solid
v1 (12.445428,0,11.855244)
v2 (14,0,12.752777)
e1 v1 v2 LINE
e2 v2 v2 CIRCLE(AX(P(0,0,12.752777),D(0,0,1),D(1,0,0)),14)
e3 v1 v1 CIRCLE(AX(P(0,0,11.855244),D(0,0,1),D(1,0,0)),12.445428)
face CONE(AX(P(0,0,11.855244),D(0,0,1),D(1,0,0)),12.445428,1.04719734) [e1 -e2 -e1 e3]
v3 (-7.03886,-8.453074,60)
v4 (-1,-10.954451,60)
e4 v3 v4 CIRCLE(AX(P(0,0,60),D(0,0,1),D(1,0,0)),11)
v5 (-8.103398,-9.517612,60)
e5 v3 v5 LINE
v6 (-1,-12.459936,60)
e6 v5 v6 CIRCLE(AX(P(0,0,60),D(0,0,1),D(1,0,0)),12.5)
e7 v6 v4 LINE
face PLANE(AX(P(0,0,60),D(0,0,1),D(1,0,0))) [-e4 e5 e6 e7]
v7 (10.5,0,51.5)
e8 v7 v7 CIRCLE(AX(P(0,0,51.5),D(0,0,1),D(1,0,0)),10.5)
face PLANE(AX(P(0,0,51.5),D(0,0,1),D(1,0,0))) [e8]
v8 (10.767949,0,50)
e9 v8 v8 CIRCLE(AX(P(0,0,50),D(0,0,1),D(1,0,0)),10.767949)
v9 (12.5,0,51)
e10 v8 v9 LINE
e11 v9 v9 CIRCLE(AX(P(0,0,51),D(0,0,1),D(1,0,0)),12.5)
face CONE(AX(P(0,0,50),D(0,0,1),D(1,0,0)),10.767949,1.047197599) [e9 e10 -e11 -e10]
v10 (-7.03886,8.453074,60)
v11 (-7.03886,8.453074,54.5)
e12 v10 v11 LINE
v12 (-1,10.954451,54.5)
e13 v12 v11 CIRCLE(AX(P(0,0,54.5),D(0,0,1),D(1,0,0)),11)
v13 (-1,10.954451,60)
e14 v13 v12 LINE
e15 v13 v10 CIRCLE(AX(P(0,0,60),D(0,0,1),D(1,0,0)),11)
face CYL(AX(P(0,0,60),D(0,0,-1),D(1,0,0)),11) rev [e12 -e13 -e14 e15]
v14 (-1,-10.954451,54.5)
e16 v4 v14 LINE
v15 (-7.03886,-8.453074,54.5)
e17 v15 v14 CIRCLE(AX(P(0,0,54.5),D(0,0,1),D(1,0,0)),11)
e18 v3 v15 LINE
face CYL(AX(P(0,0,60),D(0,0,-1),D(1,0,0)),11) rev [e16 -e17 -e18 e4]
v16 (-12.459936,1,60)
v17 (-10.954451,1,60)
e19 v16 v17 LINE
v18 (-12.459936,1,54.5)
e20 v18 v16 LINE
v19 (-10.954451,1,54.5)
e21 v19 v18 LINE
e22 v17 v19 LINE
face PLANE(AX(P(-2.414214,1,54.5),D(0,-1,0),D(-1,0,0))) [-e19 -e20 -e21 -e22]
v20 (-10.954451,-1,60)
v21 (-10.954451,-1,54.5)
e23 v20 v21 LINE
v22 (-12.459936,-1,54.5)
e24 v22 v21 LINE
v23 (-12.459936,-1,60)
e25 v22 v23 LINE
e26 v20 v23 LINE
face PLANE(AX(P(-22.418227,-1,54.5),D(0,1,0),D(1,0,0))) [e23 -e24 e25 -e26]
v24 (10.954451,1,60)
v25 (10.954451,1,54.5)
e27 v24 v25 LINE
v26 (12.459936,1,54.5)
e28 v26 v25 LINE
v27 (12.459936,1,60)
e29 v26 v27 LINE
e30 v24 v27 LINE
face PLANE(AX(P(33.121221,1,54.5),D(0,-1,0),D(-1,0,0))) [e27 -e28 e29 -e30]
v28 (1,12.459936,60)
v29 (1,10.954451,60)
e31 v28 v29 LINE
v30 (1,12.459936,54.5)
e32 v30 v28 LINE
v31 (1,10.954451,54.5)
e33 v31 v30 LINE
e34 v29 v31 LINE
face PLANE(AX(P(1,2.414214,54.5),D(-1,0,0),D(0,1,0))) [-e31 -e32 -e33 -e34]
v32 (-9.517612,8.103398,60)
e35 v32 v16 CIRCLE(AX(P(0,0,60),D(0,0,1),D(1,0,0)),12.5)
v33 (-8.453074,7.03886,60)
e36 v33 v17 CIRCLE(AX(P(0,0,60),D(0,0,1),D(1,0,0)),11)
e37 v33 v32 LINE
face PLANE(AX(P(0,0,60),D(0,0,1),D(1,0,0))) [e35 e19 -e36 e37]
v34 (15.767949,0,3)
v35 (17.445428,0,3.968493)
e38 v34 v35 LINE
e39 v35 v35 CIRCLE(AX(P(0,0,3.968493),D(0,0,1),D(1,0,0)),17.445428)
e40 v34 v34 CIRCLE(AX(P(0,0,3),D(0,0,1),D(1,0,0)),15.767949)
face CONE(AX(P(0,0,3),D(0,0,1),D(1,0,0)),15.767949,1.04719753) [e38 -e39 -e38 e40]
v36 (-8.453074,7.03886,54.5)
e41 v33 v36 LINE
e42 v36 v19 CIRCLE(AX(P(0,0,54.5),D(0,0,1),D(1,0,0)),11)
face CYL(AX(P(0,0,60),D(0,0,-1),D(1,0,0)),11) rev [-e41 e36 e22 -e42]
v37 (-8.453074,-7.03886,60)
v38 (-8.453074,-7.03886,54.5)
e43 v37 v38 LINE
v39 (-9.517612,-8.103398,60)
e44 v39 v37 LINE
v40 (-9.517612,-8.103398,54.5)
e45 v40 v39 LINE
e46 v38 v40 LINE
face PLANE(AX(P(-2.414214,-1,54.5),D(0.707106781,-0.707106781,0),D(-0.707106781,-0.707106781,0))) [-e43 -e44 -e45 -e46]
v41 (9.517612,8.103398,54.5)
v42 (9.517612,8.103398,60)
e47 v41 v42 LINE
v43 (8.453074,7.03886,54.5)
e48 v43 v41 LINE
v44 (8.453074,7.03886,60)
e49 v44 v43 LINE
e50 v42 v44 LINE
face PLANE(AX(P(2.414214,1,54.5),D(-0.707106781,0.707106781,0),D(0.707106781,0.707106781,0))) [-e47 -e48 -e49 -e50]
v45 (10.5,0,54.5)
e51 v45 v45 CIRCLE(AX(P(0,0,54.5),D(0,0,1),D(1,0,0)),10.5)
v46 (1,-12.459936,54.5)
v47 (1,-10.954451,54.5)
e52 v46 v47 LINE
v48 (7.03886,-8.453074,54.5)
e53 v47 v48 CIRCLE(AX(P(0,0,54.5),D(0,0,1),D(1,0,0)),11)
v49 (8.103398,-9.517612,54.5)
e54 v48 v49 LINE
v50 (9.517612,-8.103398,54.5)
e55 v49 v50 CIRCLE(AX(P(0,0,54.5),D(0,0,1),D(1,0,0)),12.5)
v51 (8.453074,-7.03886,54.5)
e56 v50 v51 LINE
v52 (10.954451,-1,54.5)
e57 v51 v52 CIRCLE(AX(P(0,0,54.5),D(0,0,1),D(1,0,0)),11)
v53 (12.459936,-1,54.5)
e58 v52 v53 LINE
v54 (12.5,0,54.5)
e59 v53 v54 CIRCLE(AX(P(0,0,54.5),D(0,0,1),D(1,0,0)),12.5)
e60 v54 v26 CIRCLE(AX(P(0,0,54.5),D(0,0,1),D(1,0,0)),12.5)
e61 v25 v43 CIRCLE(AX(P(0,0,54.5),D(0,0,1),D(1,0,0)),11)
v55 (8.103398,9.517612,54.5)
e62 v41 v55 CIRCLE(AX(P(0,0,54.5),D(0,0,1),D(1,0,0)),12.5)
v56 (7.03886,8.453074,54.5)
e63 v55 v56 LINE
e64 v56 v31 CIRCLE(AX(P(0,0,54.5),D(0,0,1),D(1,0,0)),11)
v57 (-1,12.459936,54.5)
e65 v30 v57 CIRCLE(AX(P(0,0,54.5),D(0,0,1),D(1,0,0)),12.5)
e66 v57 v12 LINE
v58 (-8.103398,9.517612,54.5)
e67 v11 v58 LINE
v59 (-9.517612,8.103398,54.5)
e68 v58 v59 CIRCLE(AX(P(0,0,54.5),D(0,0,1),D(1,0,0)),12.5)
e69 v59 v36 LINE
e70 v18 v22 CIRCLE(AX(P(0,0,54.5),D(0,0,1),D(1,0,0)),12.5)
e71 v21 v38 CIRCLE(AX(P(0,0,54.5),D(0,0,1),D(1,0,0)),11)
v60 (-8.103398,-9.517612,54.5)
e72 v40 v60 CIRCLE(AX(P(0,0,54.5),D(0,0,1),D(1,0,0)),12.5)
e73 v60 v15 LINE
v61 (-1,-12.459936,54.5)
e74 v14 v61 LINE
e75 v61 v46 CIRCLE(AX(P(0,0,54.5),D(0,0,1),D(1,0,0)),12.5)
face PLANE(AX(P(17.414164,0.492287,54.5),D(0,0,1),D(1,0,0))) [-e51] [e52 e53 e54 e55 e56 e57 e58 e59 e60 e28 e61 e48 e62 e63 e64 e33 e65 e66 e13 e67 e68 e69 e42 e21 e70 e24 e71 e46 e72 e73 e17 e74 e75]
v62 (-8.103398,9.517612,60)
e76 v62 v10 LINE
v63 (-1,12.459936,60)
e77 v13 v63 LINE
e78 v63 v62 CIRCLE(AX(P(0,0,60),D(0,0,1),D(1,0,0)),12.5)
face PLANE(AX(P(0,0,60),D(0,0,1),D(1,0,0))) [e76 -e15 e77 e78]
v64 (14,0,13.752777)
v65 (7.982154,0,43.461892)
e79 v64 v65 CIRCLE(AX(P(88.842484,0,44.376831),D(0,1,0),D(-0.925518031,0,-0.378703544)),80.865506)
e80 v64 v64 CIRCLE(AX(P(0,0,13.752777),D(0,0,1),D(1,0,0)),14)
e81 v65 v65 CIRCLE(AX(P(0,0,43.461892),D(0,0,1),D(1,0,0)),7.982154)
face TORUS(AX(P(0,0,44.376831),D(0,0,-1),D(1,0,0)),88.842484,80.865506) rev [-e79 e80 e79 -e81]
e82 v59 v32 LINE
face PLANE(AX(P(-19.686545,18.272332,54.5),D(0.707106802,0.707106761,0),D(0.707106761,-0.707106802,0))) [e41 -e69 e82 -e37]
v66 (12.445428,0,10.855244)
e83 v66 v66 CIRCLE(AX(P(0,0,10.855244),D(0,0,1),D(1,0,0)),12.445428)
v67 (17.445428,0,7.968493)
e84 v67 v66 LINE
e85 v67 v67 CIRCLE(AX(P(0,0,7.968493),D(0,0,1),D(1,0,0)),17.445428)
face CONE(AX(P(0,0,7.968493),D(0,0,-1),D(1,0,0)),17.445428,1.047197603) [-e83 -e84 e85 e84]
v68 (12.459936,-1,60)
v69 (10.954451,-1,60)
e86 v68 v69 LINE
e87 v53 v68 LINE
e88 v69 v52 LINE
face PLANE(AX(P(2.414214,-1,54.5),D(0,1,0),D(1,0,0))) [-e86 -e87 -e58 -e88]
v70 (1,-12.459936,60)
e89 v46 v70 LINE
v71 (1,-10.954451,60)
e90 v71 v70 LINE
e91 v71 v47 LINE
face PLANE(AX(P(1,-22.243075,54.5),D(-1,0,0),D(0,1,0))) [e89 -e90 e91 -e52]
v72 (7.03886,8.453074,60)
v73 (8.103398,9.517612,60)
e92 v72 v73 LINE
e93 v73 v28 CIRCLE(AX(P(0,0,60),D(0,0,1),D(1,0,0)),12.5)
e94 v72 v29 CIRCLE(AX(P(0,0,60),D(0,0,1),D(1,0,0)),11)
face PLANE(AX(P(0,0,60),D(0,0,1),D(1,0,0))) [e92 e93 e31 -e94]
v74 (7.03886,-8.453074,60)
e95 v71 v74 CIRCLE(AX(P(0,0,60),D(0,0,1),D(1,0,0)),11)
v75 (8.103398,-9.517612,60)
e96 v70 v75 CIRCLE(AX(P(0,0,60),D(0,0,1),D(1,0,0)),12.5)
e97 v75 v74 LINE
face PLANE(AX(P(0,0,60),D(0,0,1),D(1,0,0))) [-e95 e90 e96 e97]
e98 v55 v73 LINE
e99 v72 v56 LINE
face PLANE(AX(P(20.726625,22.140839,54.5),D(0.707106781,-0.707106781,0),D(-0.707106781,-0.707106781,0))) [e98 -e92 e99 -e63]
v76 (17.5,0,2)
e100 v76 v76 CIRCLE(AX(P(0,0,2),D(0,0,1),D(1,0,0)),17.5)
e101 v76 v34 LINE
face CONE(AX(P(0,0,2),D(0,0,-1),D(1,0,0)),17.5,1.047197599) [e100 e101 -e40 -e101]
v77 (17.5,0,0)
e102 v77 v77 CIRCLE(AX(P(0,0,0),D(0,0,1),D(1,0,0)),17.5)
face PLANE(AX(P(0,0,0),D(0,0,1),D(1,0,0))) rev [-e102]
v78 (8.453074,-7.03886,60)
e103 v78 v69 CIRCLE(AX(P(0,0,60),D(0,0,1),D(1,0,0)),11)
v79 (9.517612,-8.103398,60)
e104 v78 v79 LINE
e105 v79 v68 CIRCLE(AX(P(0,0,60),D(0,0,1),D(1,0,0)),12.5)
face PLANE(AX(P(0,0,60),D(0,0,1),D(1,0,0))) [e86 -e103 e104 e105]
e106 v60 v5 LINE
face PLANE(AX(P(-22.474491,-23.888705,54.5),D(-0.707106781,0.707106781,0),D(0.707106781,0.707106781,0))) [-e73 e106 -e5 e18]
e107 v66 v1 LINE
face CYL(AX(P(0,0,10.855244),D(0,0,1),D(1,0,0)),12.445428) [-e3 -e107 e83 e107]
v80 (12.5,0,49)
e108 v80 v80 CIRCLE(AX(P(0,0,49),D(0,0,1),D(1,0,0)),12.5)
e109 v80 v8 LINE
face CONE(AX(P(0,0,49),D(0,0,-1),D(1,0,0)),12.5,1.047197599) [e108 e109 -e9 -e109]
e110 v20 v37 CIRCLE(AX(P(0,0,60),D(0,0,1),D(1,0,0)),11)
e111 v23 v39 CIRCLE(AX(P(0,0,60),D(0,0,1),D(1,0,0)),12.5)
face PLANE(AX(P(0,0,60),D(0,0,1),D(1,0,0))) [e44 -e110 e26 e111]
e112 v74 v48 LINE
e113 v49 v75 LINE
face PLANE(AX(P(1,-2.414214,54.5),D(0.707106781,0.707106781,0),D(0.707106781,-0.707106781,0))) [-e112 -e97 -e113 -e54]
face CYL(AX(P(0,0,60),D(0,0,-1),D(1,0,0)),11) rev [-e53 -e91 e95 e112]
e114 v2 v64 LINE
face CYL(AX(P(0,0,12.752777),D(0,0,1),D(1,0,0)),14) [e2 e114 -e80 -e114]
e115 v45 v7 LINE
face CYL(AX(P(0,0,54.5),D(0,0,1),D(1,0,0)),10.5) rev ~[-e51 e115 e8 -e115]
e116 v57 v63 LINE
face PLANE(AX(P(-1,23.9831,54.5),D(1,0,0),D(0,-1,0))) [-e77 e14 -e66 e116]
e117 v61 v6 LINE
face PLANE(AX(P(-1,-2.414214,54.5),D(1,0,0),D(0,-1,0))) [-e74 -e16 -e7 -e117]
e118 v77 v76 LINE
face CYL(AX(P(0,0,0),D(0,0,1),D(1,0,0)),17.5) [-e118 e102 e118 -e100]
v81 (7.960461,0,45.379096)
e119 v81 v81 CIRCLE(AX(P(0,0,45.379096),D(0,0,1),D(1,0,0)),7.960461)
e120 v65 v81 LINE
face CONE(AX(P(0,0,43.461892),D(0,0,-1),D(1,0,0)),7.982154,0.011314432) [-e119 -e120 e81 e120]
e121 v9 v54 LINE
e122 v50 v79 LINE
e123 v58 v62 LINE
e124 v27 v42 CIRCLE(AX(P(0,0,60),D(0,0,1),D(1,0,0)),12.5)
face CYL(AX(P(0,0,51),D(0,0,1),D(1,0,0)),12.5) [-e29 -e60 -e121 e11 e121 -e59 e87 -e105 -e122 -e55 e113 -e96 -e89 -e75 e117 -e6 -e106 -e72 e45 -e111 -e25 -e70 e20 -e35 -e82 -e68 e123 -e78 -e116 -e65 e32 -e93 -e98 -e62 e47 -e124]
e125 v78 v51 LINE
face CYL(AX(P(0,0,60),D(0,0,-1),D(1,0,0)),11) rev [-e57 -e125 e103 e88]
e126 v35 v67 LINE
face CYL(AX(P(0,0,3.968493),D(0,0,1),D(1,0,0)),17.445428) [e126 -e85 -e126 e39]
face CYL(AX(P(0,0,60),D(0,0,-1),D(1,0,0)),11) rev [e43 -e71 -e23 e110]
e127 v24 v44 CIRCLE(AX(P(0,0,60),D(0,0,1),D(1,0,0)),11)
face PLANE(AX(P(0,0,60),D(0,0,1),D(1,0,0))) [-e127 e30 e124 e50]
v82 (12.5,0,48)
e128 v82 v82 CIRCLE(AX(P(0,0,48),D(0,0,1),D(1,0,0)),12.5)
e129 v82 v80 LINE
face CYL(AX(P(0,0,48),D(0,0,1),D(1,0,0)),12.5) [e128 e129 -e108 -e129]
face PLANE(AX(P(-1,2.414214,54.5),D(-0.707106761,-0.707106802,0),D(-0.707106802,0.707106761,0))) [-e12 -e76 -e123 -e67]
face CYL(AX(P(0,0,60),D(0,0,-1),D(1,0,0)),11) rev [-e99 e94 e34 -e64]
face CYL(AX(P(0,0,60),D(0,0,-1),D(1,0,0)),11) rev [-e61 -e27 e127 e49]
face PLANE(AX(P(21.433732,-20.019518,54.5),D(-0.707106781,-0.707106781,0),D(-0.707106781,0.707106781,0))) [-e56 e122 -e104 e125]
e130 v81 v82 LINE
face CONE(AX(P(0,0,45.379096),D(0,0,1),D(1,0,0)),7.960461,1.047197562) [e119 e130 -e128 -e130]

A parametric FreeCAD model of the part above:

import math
import FreeCAD as App
import Part
import Sketcher
Q = App.Units.Quantity


def add_polygon(sketch, points):
    """Adds a closed chain of lines whose ends are joined by coincident constraints."""
    first, n = sketch.GeometryCount, len(points)
    for a, b in zip(points, points[1:] + points[:1]):
        sketch.addGeometry(Part.LineSegment(App.Vector(*a, 0), App.Vector(*b, 0)), False)
    for i in range(n):
        sketch.addConstraint(Sketcher.Constraint("Coincident", first + i, 2, first + (i + 1) % n, 1))

doc = App.newDocument("Part")
body = doc.addObject("PartDesign::Body", "Body")

sketch1 = body.newObject("Sketcher::SketchObject", "Sketch")
sketch1.AttachmentSupport = (doc.getObject("XZ_Plane"), [""])
sketch1.MapMode = "FlatFace"
sketch1.addGeometry([
    Part.LineSegment(App.Vector(0, 0, 0), App.Vector(17.5, 0, 0)),
    Part.LineSegment(App.Vector(17.5, 0, 0), App.Vector(17.5, 2, 0)),
    Part.LineSegment(App.Vector(17.5, 2, 0), App.Vector(15.767949, 3, 0)),
    Part.LineSegment(App.Vector(15.767949, 3, 0), App.Vector(17.445428, 3.968493, 0)),
    Part.LineSegment(App.Vector(17.445428, 3.968493, 0), App.Vector(17.445428, 7.968493, 0)),
    Part.LineSegment(App.Vector(17.445428, 7.968493, 0), App.Vector(12.445428, 10.855244, 0)),
    Part.LineSegment(App.Vector(12.445428, 10.855244, 0), App.Vector(12.445428, 11.855244, 0)),
    Part.LineSegment(App.Vector(12.445428, 11.855244, 0), App.Vector(14, 12.752777, 0)),
    Part.LineSegment(App.Vector(14, 12.752777, 0), App.Vector(14, 13.752777, 0)),
    Part.ArcOfCircle(Part.Circle(App.Vector(88.842484, 44.376831, 0), App.Vector(0, 0, 1), 80.865506), math.radians(-179.351723), math.radians(-157.7466)),
    Part.LineSegment(App.Vector(7.982154, 43.461892, 0), App.Vector(7.960461, 45.379096, 0)),
    Part.LineSegment(App.Vector(7.960461, 45.379096, 0), App.Vector(12.5, 48, 0)),
    Part.LineSegment(App.Vector(12.5, 48, 0), App.Vector(12.5, 49, 0)),
    Part.LineSegment(App.Vector(12.5, 49, 0), App.Vector(10.767949, 50, 0)),
    Part.LineSegment(App.Vector(10.767949, 50, 0), App.Vector(12.5, 51, 0)),
    Part.LineSegment(App.Vector(12.5, 51, 0), App.Vector(12.5, 60, 0)),
    Part.LineSegment(App.Vector(12.5, 60, 0), App.Vector(11, 60, 0)),
    Part.LineSegment(App.Vector(11, 60, 0), App.Vector(11, 54.5, 0)),
    Part.LineSegment(App.Vector(11, 54.5, 0), App.Vector(0, 54.5, 0)),
    Part.LineSegment(App.Vector(0, 54.5, 0), App.Vector(0, 0, 0)),
], False)
sketch1.addConstraint([
    Sketcher.Constraint("Coincident", 0, 2, 1, 1),
    Sketcher.Constraint("Coincident", 1, 2, 2, 1),
    Sketcher.Constraint("Coincident", 2, 2, 3, 1),
    Sketcher.Constraint("Coincident", 3, 2, 4, 1),
    Sketcher.Constraint("Coincident", 4, 2, 5, 1),
    Sketcher.Constraint("Coincident", 5, 2, 6, 1),
    Sketcher.Constraint("Coincident", 6, 2, 7, 1),
    Sketcher.Constraint("Coincident", 7, 2, 8, 1),
    Sketcher.Constraint("Coincident", 8, 2, 9, 2),
    Sketcher.Constraint("Coincident", 9, 1, 10, 1),
    Sketcher.Constraint("Coincident", 10, 2, 11, 1),
    Sketcher.Constraint("Coincident", 11, 2, 12, 1),
    Sketcher.Constraint("Coincident", 12, 2, 13, 1),
    Sketcher.Constraint("Coincident", 13, 2, 14, 1),
    Sketcher.Constraint("Coincident", 14, 2, 15, 1),
    Sketcher.Constraint("Coincident", 15, 2, 16, 1),
    Sketcher.Constraint("Coincident", 16, 2, 17, 1),
    Sketcher.Constraint("Coincident", 17, 2, 18, 1),
    Sketcher.Constraint("Coincident", 18, 2, 19, 1),
    Sketcher.Constraint("Coincident", 19, 2, 0, 1),
    Sketcher.Constraint("Horizontal", 0),
    Sketcher.Constraint("Vertical", 1),
    Sketcher.Constraint("Vertical", 4),
    Sketcher.Constraint("Vertical", 6),
    Sketcher.Constraint("Vertical", 8),
    Sketcher.Constraint("Vertical", 12),
    Sketcher.Constraint("Vertical", 15),
    Sketcher.Constraint("Horizontal", 16),
    Sketcher.Constraint("Vertical", 17),
    Sketcher.Constraint("Horizontal", 18),
    Sketcher.Constraint("Vertical", 19),
    Sketcher.Constraint("Coincident", 19, 2, -1, 1),
    Sketcher.Constraint("DistanceX", 18, 2, 18, 1, Q("11 mm")),
    Sketcher.Constraint("DistanceY", 1, 1, 1, 2, Q("2 mm")),
    Sketcher.Constraint("DistanceY", 4, 1, 4, 2, Q("4 mm")),
    Sketcher.Constraint("DistanceY", 6, 1, 6, 2, Q("1 mm")),
    Sketcher.Constraint("DistanceY", 8, 1, 8, 2, Q("1 mm")),
    Sketcher.Constraint("DistanceY", 12, 1, 12, 2, Q("1 mm")),
    Sketcher.Constraint("DistanceY", 15, 1, 15, 2, Q("9 mm")),
    Sketcher.Constraint("Distance", 2, Q("2 mm")),
    Sketcher.Constraint("Distance", 13, Q("2 mm")),
    Sketcher.Constraint("Distance", 14, Q("2 mm")),
    Sketcher.Constraint("DistanceX", 0, 1, 0, 2, Q("17.5 mm")),
    Sketcher.Constraint("DistanceX", 16, 2, 16, 1, Q("1.5 mm")),
    Sketcher.Constraint("DistanceY", 17, 2, 17, 1, Q("5.5 mm")),
    Sketcher.Constraint("DistanceY", 19, 2, 19, 1, Q("54.5 mm")),
    Sketcher.Constraint("DistanceY", -1, 1, 2, 2, Q("3 mm")),
    Sketcher.Constraint("DistanceX", -1, 1, 7, 2, Q("14 mm")),
    Sketcher.Constraint("DistanceY", -1, 1, 11, 2, Q("48 mm")),
    Sketcher.Constraint("DistanceY", -1, 1, 13, 2, Q("50 mm")),
    Sketcher.Constraint("DistanceX", 5, 2, 4, 2, Q("5 mm")),
    Sketcher.Constraint("Radius", 9, Q("80.865506 mm")),
    Sketcher.Constraint("DistanceY", 4, 2, 9, 1, Q("35.493399 mm")),
    Sketcher.Constraint("Distance", 11, Q("5.241808 mm")),
    Sketcher.Constraint("DistanceY", -1, 1, 9, 3, Q("44.376831 mm")),
    Sketcher.Constraint("DistanceX", -1, 1, 10, 2, Q("7.960461 mm")),
    Sketcher.Constraint("DistanceX", 2, 2, 3, 2, Q("1.677479 mm")),
    Sketcher.Constraint("DistanceY", 4, 2, 5, 2, Q("2.886751 mm")),
    Sketcher.Constraint("DistanceY", 8, 2, 10, 2, Q("31.626319 mm")),
    Sketcher.Constraint("DistanceY", 6, 2, 10, 2, Q("33.523852 mm")),
])
revolution = body.newObject("PartDesign::Revolution", "Revolution")
revolution.Profile = sketch1
revolution.ReferenceAxis = (sketch1, ["V_Axis"])
revolution.Angle = 360

sketch2 = body.newObject("Sketcher::SketchObject", "Sketch001")
sketch2.AttachmentSupport = (doc.getObject("XY_Plane"), [""])
sketch2.MapMode = "FlatFace"
sketch2.AttachmentOffset = App.Placement(App.Vector(0, 0, 54.5), App.Rotation())
add_polygon(sketch2, [(1, 0), (0, 0), (-0.71, 0.71), (-1, 0.41), (-1, -0.41), (-0.41, -1), (1, -1)])
add_polygon(sketch2, [(2.41, 1), (1.41, 0), (2.41, -1), (33.12, -1), (33.12, 1)])
add_polygon(sketch2, [(-1, 2.41), (0, 1.41), (1, 2.41), (1, 23.98), (-1, 23.98)])
add_polygon(sketch2, [(1, 1), (2.41, 1), (22.14, 20.73), (20.73, 22.14), (1, 2.41)])
add_polygon(sketch2, [(-1, 1), (-1, 2.41), (-18.31, 19.73), (-19, 19), (-19.69, 18.27), (-2.41, 1)])
add_polygon(sketch2, [(21.43, -20.02), (2.41, -1), (1, -1), (1, -2.41), (20.02, -21.43)])
add_polygon(sketch2, [(-2.41, -1), (-1.41, 0), (-2.41, 1), (-22.42, 1), (-22.42, -1)])
add_polygon(sketch2, [(1, -22.24), (1, -2.41), (0, -1.41), (-1, -2.41), (-1, -22.24)])
add_polygon(sketch2, [(-1, -2.41), (-1, -1), (-2.41, -1), (-23.89, -22.47), (-22.47, -23.89)])
sketch2.addConstraint([
    Sketcher.Constraint("Horizontal", 0),
    Sketcher.Constraint("Vertical", 3),
    Sketcher.Constraint("Horizontal", 5),
    Sketcher.Constraint("Vertical", 6),
    Sketcher.Constraint("Horizontal", 9),
    Sketcher.Constraint("Vertical", 10),
    Sketcher.Constraint("Horizontal", 11),
    Sketcher.Constraint("Vertical", 14),
    Sketcher.Constraint("Horizontal", 15),
    Sketcher.Constraint("Vertical", 16),
    Sketcher.Constraint("Horizontal", 17),
    Sketcher.Constraint("Vertical", 21),
    Sketcher.Constraint("Vertical", 22),
    Sketcher.Constraint("Horizontal", 27),
    Sketcher.Constraint("Horizontal", 29),
    Sketcher.Constraint("Vertical", 30),
    Sketcher.Constraint("Horizontal", 35),
    Sketcher.Constraint("Vertical", 36),
    Sketcher.Constraint("Horizontal", 37),
    Sketcher.Constraint("Vertical", 38),
    Sketcher.Constraint("Vertical", 41),
    Sketcher.Constraint("Horizontal", 42),
    Sketcher.Constraint("Vertical", 43),
    Sketcher.Constraint("Horizontal", 44),
    Sketcher.Constraint("Coincident", 0, 2, -1, 1),
    Sketcher.Constraint("Coincident", 17, 2, 11, 2),
    Sketcher.Constraint("Coincident", 20, 2, 13, 2),
    Sketcher.Constraint("Coincident", 22, 2, 16, 2),
    Sketcher.Constraint("Coincident", 28, 2, 8, 2),
    Sketcher.Constraint("Coincident", 29, 2, 5, 2),
    Sketcher.Constraint("Coincident", 34, 2, 26, 2),
    Sketcher.Constraint("Coincident", 38, 2, 30, 2),
    Sketcher.Constraint("Coincident", 44, 2, 37, 2),
    Sketcher.Constraint("Coincident", 47, 2, 40, 2),
    Sketcher.Constraint("Symmetric", 8, 2, 26, 2, -1, 1),
    Sketcher.Constraint("Symmetric", 16, 2, 30, 2, -1, 1),
    Sketcher.Constraint("Symmetric", 7, 2, 33, 2, -1, 1),
    Sketcher.Constraint("Symmetric", 11, 2, 37, 2, -1, 1),
    Sketcher.Constraint("Symmetric", 12, 2, 39, 2, -1, 1),
    Sketcher.Constraint("Symmetric", 13, 2, 40, 2, -1, 1),
    Sketcher.Constraint("Symmetric", 13, 2, 16, 2, -2),
    Sketcher.Constraint("Symmetric", 11, 2, 26, 2, -2),
    Sketcher.Constraint("PointOnObject", 7, 2, -1),
    Sketcher.Constraint("PointOnObject", 12, 2, -2),
    Sketcher.Constraint("Perpendicular", 1, 2),
    Sketcher.Constraint("Perpendicular", 2, 4),
    Sketcher.Constraint("Perpendicular", 4, 7),
    Sketcher.Constraint("Perpendicular", 7, 8),
    Sketcher.Constraint("Parallel", 8, 12),
    Sketcher.Constraint("Parallel", 13, 18),
    Sketcher.Constraint("Perpendicular", 18, 19),
    Sketcher.Constraint("Perpendicular", 19, 20),
    Sketcher.Constraint("Perpendicular", 20, 23),
    Sketcher.Constraint("Parallel", 24, 25),
    Sketcher.Constraint("Parallel", 23, 26),
    Sketcher.Constraint("Parallel", 26, 28),
    Sketcher.Constraint("Parallel", 28, 31),
    Sketcher.Constraint("Perpendicular", 31, 32),
    Sketcher.Constraint("Parallel", 40, 45),
    Sketcher.Constraint("Perpendicular", 45, 46),
    Sketcher.Constraint("Perpendicular", 46, 47),
    Sketcher.Constraint("Vertical", 3, 2, 15, 2),
    Sketcher.Constraint("Equal", 5, 17),
    Sketcher.Constraint("Equal", 0, 6),
    Sketcher.Constraint("Equal", 44, 21),
    Sketcher.Constraint("Equal", 24, 25),
    Sketcher.Constraint("DistanceX", 0, 2, 0, 1, Q("1 mm")),
    Sketcher.Constraint("Distance", 1, Q("1 mm")),
    Sketcher.Constraint("Distance", 19, Q("2.000001 mm")),
    Sketcher.Constraint("DistanceY", 38, 1, 38, 2, Q("19.828861 mm")),
    Sketcher.Constraint("DistanceY", -1, 1, 14, 2, Q("23.9831 mm")),
    Sketcher.Constraint("DistanceY", 24, 2, 23, 2, Q("0.726901 mm")),
    Sketcher.Constraint("Distance", 18, Q("27.897661 mm")),
    Sketcher.Constraint("Distance", 23, Q("24.482751 mm")),
    Sketcher.Constraint("Distance", 28, Q("26.89766 mm")),
    Sketcher.Constraint("DistanceX", 9, 1, 9, 2, Q("30.707007 mm")),
    Sketcher.Constraint("DistanceX", 35, 2, 35, 1, Q("20.004013 mm")),
    Sketcher.Constraint("DistanceY", 45, 2, -1, 1, Q("22.474491 mm")),
])
pocket1 = body.newObject("PartDesign::Pocket", "Pocket")
pocket1.Profile = sketch2
pocket1.Length = 27
pocket1.Reversed = True

sketch3 = body.newObject("Sketcher::SketchObject", "Sketch002")
sketch3.AttachmentSupport = (doc.getObject("XY_Plane"), [""])
sketch3.MapMode = "FlatFace"
sketch3.AttachmentOffset = App.Placement(App.Vector(0, 0, 54.5), App.Rotation())
sketch3.addGeometry(Part.Circle(App.Vector(0, 0, 0), App.Vector(0, 0, 1), 10), False)
sketch3.addConstraint([
    Sketcher.Constraint("Coincident", 0, 3, -1, 1),
    Sketcher.Constraint("Diameter", 0, Q("21 mm")),
])
pocket2 = body.newObject("PartDesign::Pocket", "Pocket001")
pocket2.Profile = sketch3
pocket2.Length = 3

doc.recompute()
